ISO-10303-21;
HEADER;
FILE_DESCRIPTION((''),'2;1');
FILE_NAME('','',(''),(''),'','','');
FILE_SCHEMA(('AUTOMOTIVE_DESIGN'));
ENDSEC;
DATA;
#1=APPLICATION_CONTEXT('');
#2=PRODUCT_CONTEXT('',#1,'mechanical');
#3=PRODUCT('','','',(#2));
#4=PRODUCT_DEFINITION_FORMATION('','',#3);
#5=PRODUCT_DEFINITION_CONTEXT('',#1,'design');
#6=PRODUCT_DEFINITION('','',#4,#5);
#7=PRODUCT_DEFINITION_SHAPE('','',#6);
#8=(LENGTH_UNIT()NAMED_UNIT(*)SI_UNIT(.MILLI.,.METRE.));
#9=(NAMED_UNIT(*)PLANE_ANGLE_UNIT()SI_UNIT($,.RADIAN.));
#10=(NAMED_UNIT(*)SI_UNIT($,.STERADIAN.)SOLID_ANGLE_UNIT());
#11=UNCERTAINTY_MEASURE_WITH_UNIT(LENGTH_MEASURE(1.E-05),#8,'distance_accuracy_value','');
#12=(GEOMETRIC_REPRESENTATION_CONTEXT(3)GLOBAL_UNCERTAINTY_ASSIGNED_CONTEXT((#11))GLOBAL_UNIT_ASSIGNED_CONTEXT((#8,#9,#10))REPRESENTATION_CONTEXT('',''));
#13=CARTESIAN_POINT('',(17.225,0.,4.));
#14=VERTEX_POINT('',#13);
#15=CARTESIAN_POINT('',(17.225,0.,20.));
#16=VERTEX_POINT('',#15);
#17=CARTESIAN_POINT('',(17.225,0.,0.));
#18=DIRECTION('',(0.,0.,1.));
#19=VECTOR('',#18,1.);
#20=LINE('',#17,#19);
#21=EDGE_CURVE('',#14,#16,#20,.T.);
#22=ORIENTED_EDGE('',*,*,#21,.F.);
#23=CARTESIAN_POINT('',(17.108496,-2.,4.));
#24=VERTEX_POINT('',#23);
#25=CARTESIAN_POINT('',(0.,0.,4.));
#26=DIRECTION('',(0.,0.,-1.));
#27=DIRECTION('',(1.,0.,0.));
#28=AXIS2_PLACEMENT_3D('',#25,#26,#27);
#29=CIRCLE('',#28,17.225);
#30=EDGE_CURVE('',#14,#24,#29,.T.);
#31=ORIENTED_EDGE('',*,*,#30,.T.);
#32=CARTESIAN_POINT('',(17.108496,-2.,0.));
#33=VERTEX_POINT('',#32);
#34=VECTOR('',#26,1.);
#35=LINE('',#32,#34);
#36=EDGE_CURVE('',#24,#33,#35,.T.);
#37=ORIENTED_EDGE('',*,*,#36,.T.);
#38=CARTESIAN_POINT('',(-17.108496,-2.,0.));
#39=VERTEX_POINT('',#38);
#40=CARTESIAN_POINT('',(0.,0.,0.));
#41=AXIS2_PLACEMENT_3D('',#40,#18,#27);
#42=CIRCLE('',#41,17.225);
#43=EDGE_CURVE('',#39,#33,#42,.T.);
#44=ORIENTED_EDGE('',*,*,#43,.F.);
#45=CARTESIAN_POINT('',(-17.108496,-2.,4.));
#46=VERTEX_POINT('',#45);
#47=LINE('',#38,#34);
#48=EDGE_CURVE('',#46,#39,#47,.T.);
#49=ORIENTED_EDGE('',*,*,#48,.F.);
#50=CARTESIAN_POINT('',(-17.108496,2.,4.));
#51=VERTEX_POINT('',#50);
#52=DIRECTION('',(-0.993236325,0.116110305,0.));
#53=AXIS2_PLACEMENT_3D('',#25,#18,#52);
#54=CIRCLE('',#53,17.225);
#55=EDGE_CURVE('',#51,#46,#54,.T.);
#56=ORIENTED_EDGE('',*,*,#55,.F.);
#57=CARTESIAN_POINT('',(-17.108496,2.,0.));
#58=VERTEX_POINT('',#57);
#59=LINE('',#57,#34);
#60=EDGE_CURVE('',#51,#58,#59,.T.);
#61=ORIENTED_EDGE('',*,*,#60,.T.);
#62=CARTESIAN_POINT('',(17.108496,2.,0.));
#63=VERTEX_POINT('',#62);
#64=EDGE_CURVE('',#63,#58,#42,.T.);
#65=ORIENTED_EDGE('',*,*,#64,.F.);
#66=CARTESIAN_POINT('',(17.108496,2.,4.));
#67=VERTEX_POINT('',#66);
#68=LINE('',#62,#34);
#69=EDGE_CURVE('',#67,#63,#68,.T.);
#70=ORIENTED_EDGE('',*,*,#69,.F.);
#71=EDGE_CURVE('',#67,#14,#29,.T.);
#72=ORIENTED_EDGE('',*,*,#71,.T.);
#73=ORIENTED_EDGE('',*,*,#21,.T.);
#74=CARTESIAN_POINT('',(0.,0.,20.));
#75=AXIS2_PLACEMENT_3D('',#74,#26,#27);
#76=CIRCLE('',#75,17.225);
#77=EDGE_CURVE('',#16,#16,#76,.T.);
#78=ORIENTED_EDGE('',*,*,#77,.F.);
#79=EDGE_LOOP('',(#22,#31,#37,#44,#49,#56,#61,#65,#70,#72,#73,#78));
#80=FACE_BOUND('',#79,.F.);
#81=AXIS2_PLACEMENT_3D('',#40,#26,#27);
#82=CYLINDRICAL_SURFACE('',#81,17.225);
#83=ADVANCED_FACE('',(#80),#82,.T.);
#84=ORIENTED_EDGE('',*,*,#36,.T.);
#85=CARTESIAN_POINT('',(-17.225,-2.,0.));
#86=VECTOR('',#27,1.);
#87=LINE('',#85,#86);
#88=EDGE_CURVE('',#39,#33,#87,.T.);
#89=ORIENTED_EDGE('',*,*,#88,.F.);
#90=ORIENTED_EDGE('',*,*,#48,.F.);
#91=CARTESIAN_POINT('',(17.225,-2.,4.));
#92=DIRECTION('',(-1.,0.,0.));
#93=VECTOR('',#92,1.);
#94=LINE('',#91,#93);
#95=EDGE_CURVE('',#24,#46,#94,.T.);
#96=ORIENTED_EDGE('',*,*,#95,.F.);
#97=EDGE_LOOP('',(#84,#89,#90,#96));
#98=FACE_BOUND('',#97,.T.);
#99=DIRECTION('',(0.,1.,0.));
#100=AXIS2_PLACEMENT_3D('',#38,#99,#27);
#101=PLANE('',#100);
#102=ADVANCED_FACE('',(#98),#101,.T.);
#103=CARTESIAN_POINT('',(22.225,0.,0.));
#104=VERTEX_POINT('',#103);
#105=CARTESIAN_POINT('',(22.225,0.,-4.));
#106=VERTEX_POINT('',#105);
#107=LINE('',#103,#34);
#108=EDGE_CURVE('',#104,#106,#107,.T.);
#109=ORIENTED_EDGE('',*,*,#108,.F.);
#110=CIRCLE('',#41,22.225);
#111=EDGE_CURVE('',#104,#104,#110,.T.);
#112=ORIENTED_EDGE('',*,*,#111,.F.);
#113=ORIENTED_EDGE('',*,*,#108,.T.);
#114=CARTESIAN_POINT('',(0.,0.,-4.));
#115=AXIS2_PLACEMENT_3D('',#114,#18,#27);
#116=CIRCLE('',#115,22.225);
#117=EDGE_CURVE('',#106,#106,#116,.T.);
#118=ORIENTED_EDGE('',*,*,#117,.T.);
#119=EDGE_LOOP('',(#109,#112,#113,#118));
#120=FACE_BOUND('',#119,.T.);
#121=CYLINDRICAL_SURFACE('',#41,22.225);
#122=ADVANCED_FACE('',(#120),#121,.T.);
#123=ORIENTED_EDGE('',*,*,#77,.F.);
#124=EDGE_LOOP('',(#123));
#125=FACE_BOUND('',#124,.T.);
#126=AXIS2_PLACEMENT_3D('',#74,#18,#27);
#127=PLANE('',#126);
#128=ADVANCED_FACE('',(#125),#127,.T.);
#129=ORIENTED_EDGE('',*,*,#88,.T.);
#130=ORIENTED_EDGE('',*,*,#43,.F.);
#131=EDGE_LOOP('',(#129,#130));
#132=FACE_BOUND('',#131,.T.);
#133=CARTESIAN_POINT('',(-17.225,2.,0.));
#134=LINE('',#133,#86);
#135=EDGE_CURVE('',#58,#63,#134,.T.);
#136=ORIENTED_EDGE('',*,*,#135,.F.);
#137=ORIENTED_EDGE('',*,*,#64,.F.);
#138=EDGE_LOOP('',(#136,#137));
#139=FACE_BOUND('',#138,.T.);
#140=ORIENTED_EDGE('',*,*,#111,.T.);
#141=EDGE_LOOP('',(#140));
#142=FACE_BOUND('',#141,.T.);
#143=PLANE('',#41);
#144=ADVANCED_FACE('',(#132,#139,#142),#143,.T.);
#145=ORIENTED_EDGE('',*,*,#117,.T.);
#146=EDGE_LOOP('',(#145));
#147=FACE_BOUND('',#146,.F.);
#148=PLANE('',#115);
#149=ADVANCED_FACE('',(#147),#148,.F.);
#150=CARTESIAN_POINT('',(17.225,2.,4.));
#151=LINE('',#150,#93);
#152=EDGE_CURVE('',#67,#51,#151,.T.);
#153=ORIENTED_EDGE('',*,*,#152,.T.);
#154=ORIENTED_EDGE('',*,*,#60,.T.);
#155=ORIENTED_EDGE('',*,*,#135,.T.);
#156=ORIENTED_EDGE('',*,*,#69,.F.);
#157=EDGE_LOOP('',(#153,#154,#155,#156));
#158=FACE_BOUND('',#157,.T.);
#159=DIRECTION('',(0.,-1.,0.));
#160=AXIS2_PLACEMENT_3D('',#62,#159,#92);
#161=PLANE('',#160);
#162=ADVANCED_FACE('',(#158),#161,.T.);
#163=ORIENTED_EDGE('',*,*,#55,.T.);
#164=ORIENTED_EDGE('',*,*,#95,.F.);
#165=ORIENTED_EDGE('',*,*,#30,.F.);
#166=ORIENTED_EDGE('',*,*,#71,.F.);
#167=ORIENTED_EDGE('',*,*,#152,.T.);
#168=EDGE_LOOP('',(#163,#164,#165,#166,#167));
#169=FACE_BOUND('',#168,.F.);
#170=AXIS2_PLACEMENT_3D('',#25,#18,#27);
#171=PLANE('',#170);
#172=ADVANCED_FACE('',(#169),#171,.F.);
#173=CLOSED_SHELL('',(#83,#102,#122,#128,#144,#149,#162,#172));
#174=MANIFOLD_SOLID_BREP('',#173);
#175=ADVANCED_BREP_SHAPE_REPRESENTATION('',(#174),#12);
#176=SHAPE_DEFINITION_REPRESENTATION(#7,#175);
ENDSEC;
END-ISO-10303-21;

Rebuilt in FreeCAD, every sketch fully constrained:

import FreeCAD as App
import Part
import Sketcher
from FreeCAD import Vector
Q = App.Units.Quantity

doc = App.newDocument("Part")
params = doc.addObject("Spreadsheet::Sheet", "Params")
for row, (alias, value) in enumerate([
    ("sketch1_diameter", "44.45 mm"),
    ("pad1_length", "4 mm"),
    ("sketch2_diameter", "34.45 mm"),
    ("pad2_length", "20 mm"),
    ("sketch3_height", "4 mm"),
    ("sketch3_width", "34.45 mm"),
    ("pocket1_length", "4 mm"),
], start=1):
    params.set(f"A{row}", alias)
    params.set(f"B{row}", "=" + value)
    params.setAlias(f"B{row}", alias)

body = doc.addObject("PartDesign::Body", "Body")

sketch1 = body.newObject("Sketcher::SketchObject", "Sketch")
sketch1.AttachmentSupport = (doc.getObject("XY_Plane"), [""])
sketch1.MapMode = "FlatFace"
sketch1.addGeometry(Part.Circle(Vector(0, 0, 0), Vector(0, 0, 1), 22.225), False)
sketch1.addConstraint([
    Sketcher.Constraint("Coincident", 0, 3, -1, 1),
    Sketcher.Constraint("Diameter", 0, Q("44.45 mm")),
])
sketch1.setExpression("Constraints[1]", "Params.sketch1_diameter")
pad1 = body.newObject("PartDesign::Pad", "Pad")
pad1.Profile = sketch1
pad1.setExpression("Length", "Params.pad1_length")
pad1.Reversed = True

sketch2 = body.newObject("Sketcher::SketchObject", "Sketch001")
sketch2.AttachmentSupport = (doc.getObject("XY_Plane"), [""])
sketch2.MapMode = "FlatFace"
sketch2.addGeometry(Part.Circle(Vector(0, 0, 0), Vector(0, 0, 1), 17.225), False)
sketch2.addConstraint([
    Sketcher.Constraint("Coincident", 0, 3, -1, 1),
    Sketcher.Constraint("Diameter", 0, Q("34.45 mm")),
])
sketch2.setExpression("Constraints[1]", "Params.sketch2_diameter")
pad2 = body.newObject("PartDesign::Pad", "Pad001")
pad2.Profile = sketch2
pad2.setExpression("Length", "Params.pad2_length")

sketch3 = body.newObject("Sketcher::SketchObject", "Sketch002")
sketch3.AttachmentSupport = (doc.getObject("XY_Plane"), [""])
sketch3.MapMode = "FlatFace"
sketch3.addGeometry([
    Part.LineSegment(Vector(17.225, -2, 0), Vector(17.225, 2, 0)),
    Part.LineSegment(Vector(17.225, 2, 0), Vector(-17.225, 2, 0)),
    Part.LineSegment(Vector(-17.225, 2, 0), Vector(-17.225, -2, 0)),
    Part.LineSegment(Vector(-17.225, -2, 0), Vector(17.225, -2, 0)),
], False)
sketch3.addConstraint([
    Sketcher.Constraint("Coincident", 0, 2, 1, 1),
    Sketcher.Constraint("Coincident", 1, 2, 2, 1),
    Sketcher.Constraint("Coincident", 2, 2, 3, 1),
    Sketcher.Constraint("Coincident", 3, 2, 0, 1),
    Sketcher.Constraint("Vertical", 0),
    Sketcher.Constraint("Horizontal", 1),
    Sketcher.Constraint("Vertical", 2),
    Sketcher.Constraint("Horizontal", 3),
    Sketcher.Constraint("Symmetric", 0, 2, 2, 2, -1, 1),
    Sketcher.Constraint("DistanceY", 0, 1, 0, 2, Q("4 mm")),
    Sketcher.Constraint("DistanceX", 1, 2, 1, 1, Q("34.45 mm")),
])
sketch3.setExpression("Constraints[9]", "Params.sketch3_height")
sketch3.setExpression("Constraints[10]", "Params.sketch3_width")
pocket1 = body.newObject("PartDesign::Pocket", "Pocket")
pocket1.Profile = sketch3
pocket1.setExpression("Length", "Params.pocket1_length")
pocket1.Reversed = True

doc.recompute()
